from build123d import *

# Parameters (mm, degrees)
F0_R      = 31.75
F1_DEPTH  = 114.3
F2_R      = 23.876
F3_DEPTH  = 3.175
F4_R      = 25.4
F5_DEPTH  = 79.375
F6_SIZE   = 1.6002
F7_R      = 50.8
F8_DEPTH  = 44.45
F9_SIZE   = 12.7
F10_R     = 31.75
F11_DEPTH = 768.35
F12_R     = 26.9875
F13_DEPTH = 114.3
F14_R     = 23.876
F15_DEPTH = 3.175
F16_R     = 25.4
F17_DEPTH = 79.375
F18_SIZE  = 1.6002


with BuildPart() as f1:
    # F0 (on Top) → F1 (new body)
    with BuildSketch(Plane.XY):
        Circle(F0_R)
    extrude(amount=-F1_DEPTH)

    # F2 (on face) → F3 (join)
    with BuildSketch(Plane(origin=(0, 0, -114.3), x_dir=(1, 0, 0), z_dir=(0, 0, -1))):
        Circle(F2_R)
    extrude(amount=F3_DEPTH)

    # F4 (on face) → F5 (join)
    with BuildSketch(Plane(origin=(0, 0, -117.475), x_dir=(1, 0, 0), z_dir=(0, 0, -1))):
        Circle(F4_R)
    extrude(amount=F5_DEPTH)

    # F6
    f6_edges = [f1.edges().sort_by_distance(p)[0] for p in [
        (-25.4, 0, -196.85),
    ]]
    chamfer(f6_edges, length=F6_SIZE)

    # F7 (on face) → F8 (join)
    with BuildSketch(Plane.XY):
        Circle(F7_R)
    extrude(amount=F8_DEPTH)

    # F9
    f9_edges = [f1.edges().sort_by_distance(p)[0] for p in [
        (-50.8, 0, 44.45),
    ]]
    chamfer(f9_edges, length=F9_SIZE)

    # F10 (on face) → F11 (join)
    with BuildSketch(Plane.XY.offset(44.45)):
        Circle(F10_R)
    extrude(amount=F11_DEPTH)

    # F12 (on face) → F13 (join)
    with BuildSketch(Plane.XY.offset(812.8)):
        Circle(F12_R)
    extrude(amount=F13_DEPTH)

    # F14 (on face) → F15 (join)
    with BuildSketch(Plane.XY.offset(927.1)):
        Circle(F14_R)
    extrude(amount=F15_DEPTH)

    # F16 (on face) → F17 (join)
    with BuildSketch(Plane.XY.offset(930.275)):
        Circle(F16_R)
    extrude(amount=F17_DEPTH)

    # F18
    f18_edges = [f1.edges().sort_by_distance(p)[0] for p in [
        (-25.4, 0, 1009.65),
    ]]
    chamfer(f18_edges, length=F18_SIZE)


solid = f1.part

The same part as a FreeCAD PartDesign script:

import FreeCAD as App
import Part
import Sketcher
Q = App.Units.Quantity


def edges_at(feature, points):
    """Names of the edges that pass closest to the given points."""
    edges = feature.Shape.Edges
    near = lambda p: min(range(len(edges)), key=lambda i: edges[i].distToShape(Part.Vertex(*p))[0])
    return sorted({f"Edge{near(p) + 1}" for p in points})

doc = App.newDocument("Part")
body = doc.addObject("PartDesign::Body", "Body")

# Sketch on XY plane
sketch1 = body.newObject("Sketcher::SketchObject", "Sketch")
sketch1.AttachmentSupport = (doc.getObject("XY_Plane"), [""])
sketch1.MapMode = "FlatFace"
sketch1.addGeometry(Part.Circle(App.Vector(0, 0, 0), App.Vector(0, 0, 1), 32), False)
sketch1.addConstraint([
    Sketcher.Constraint("Coincident", 0, 3, -1, 1),
    Sketcher.Constraint("Diameter", 0, Q("2.5 in")),
])
pad1 = body.newObject("PartDesign::Pad", "Pad")
pad1.Profile = sketch1
pad1.Length = Q("4.5 in")
pad1.Reversed = True

# Sketch on XY plane
sketch2 = body.newObject("Sketcher::SketchObject", "Sketch001")
sketch2.AttachmentSupport = (doc.getObject("XY_Plane"), [""])
sketch2.MapMode = "FlatFace"
sketch2.AttachmentOffset = App.Placement(App.Vector(0, 0, -4.5 * 25.4), App.Rotation())
sketch2.addGeometry(Part.Circle(App.Vector(0, 0, 0), App.Vector(0, 0, 1), 24), False)
sketch2.addConstraint([
    Sketcher.Constraint("Coincident", 0, 3, -1, 1),
    Sketcher.Constraint("Diameter", 0, Q("1.88 in")),
])
pad2 = body.newObject("PartDesign::Pad", "Pad001")
pad2.Profile = sketch2
pad2.Length = Q("0.125 in")
pad2.Reversed = True

# Sketch on XY plane
sketch3 = body.newObject("Sketcher::SketchObject", "Sketch002")
sketch3.AttachmentSupport = (doc.getObject("XY_Plane"), [""])
sketch3.MapMode = "FlatFace"
sketch3.AttachmentOffset = App.Placement(App.Vector(0, 0, -4.625 * 25.4), App.Rotation())
sketch3.addGeometry(Part.Circle(App.Vector(0, 0, 0), App.Vector(0, 0, 1), 25), False)
sketch3.addConstraint([
    Sketcher.Constraint("Coincident", 0, 3, -1, 1),
    Sketcher.Constraint("Diameter", 0, Q("2 in")),
])
pad3 = body.newObject("PartDesign::Pad", "Pad002")
pad3.Profile = sketch3
pad3.Length = Q("3.125 in")
pad3.Reversed = True
doc.recompute()

chamfer = body.newObject("PartDesign::Chamfer", "Chamfer")
chamfer.Base = (pad3, edges_at(pad3, [(-25.4, 0, -196.85)]))
chamfer.Size = Q("0.063 in")

# Sketch on XY plane
sketch4 = body.newObject("Sketcher::SketchObject", "Sketch003")
sketch4.AttachmentSupport = (doc.getObject("XY_Plane"), [""])
sketch4.MapMode = "FlatFace"
sketch4.addGeometry(Part.Circle(App.Vector(0, 0, 0), App.Vector(0, 0, 1), 51), False)
sketch4.addConstraint([
    Sketcher.Constraint("Coincident", 0, 3, -1, 1),
    Sketcher.Constraint("Diameter", 0, Q("4 in")),
])
pad4 = body.newObject("PartDesign::Pad", "Pad003")
pad4.Profile = sketch4
pad4.Length = Q("1.75 in")
doc.recompute()

chamfer2 = body.newObject("PartDesign::Chamfer", "Chamfer001")
chamfer2.Base = (pad4, edges_at(pad4, [(-50.8, 0, 44.45)]))
chamfer2.Size = Q("0.5 in")

# Sketch on XY plane
sketch5 = body.newObject("Sketcher::SketchObject", "Sketch004")
sketch5.AttachmentSupport = (doc.getObject("XY_Plane"), [""])
sketch5.MapMode = "FlatFace"
sketch5.AttachmentOffset = App.Placement(App.Vector(0, 0, 1.75 * 25.4), App.Rotation())
sketch5.addGeometry(Part.Circle(App.Vector(0, 0, 0), App.Vector(0, 0, 1), 32), False)
sketch5.addConstraint([
    Sketcher.Constraint("Coincident", 0, 3, -1, 1),
    Sketcher.Constraint("Diameter", 0, Q("2.5 in")),
])
pad5 = body.newObject("PartDesign::Pad", "Pad004")
pad5.Profile = sketch5
pad5.Length = Q("30.25 in")

# Sketch on XY plane
sketch6 = body.newObject("Sketcher::SketchObject", "Sketch005")
sketch6.AttachmentSupport = (doc.getObject("XY_Plane"), [""])
sketch6.MapMode = "FlatFace"
sketch6.AttachmentOffset = App.Placement(App.Vector(0, 0, 32 * 25.4), App.Rotation())
sketch6.addGeometry(Part.Circle(App.Vector(0, 0, 0), App.Vector(0, 0, 1), 27), False)
sketch6.addConstraint([
    Sketcher.Constraint("Coincident", 0, 3, -1, 1),
    Sketcher.Constraint("Diameter", 0, Q("2.125 in")),
])
pad6 = body.newObject("PartDesign::Pad", "Pad005")
pad6.Profile = sketch6
pad6.Length = Q("4.5 in")

# Sketch on XY plane
sketch7 = body.newObject("Sketcher::SketchObject", "Sketch006")
sketch7.AttachmentSupport = (doc.getObject("XY_Plane"), [""])
sketch7.MapMode = "FlatFace"
sketch7.AttachmentOffset = App.Placement(App.Vector(0, 0, 36.5 * 25.4), App.Rotation())
sketch7.addGeometry(Part.Circle(App.Vector(0, 0, 0), App.Vector(0, 0, 1), 24), False)
sketch7.addConstraint([
    Sketcher.Constraint("Coincident", 0, 3, -1, 1),
    Sketcher.Constraint("Diameter", 0, Q("1.88 in")),
])
pad7 = body.newObject("PartDesign::Pad", "Pad006")
pad7.Profile = sketch7
pad7.Length = Q("0.125 in")

# Sketch on XY plane
sketch8 = body.newObject("Sketcher::SketchObject", "Sketch007")
sketch8.AttachmentSupport = (doc.getObject("XY_Plane"), [""])
sketch8.MapMode = "FlatFace"
sketch8.AttachmentOffset = App.Placement(App.Vector(0, 0, 36.625 * 25.4), App.Rotation())
sketch8.addGeometry(Part.Circle(App.Vector(0, 0, 0), App.Vector(0, 0, 1), 25), False)
sketch8.addConstraint([
    Sketcher.Constraint("Coincident", 0, 3, -1, 1),
    Sketcher.Constraint("Diameter", 0, Q("2 in")),
])
pad8 = body.newObject("PartDesign::Pad", "Pad007")
pad8.Profile = sketch8
pad8.Length = Q("3.125 in")
doc.recompute()

chamfer3 = body.newObject("PartDesign::Chamfer", "Chamfer002")
chamfer3.Base = (pad8, edges_at(pad8, [(-25.4, 0, 1009.65)]))
chamfer3.Size = Q("0.063 in")

doc.recompute()
